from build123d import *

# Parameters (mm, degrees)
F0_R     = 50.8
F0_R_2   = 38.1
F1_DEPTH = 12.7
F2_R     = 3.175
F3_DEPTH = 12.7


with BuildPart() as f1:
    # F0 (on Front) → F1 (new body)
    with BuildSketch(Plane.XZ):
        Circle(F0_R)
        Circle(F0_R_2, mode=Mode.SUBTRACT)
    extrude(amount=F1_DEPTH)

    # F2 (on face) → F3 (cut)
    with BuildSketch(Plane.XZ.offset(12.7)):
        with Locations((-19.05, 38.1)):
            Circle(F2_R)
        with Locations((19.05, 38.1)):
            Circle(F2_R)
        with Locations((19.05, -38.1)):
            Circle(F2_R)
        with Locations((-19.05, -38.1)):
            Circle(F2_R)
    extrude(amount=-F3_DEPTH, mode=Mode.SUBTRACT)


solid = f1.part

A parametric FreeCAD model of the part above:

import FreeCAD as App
import Part
import Sketcher

V = App.Vector
Q = App.Units.Quantity

doc = App.newDocument("Part")
body = doc.addObject("PartDesign::Body", "Body")

# Sketch on XZ plane
sketch1 = doc.addObject("Sketcher::SketchObject", "Sketch")
body.addObject(sketch1)
sketch1.AttachmentSupport = (doc.XZ_Plane, [""])
sketch1.MapMode = "FlatFace"
sketch1.addGeometry([
    Part.Circle(V(0, 0, 0), V(0, 0, 1), 51),
    Part.Circle(V(0, 0, 0), V(0, 0, 1), 38),
], False)
sketch1.addConstraint([
    Sketcher.Constraint("Coincident", 0, 3, -1, 1),
    Sketcher.Constraint("Coincident", 1, 3, -1, 1),
    Sketcher.Constraint("Diameter", 0, Q("4 in")),
    Sketcher.Constraint("Diameter", 1, Q("3 in")),
])
pad1 = doc.addObject("PartDesign::Pad", "Pad")
body.addObject(pad1)
pad1.Profile = sketch1
pad1.Length = Q("0.5 in")

# Sketch on XZ plane
sketch2 = doc.addObject("Sketcher::SketchObject", "Sketch001")
body.addObject(sketch2)
sketch2.AttachmentSupport = (doc.XZ_Plane, [""])
sketch2.MapMode = "FlatFace"
sketch2.AttachmentOffset = App.Placement(V(0, 0, 0.5 * 25.4), App.Rotation())
sketch2.addGeometry([
    Part.Circle(V(-19.1, 38.1, 0), V(0, 0, 1), 3.2),
    Part.Circle(V(19.1, 38.1, 0), V(0, 0, 1), 3.2),
    Part.Circle(V(19.1, -38.1, 0), V(0, 0, 1), 3.2),
    Part.Circle(V(-19.1, -38.1, 0), V(0, 0, 1), 3.2),
], False)
sketch2.addConstraint([
    Sketcher.Constraint("Equal", 0, 1),
    Sketcher.Constraint("Equal", 1, 2),
    Sketcher.Constraint("Equal", 2, 3),
    Sketcher.Constraint("Symmetric", 0, 3, 2, 3, -1, 1),
    Sketcher.Constraint("Symmetric", 1, 3, 3, 3, -1, 1),
    Sketcher.Constraint("Symmetric", 0, 3, 1, 3, -2),
    Sketcher.Constraint("Diameter", 0, Q("0.25 in")),
    Sketcher.Constraint("DistanceY", 2, 3, 1, 3, Q("3 in")),
    Sketcher.Constraint("DistanceX", 0, 3, 1, 3, Q("1.5 in")),
])
pocket1 = doc.addObject("PartDesign::Pocket", "Pocket")
body.addObject(pocket1)
pocket1.Profile = sketch2
pocket1.Length = Q("0.5 in")

doc.recompute()
